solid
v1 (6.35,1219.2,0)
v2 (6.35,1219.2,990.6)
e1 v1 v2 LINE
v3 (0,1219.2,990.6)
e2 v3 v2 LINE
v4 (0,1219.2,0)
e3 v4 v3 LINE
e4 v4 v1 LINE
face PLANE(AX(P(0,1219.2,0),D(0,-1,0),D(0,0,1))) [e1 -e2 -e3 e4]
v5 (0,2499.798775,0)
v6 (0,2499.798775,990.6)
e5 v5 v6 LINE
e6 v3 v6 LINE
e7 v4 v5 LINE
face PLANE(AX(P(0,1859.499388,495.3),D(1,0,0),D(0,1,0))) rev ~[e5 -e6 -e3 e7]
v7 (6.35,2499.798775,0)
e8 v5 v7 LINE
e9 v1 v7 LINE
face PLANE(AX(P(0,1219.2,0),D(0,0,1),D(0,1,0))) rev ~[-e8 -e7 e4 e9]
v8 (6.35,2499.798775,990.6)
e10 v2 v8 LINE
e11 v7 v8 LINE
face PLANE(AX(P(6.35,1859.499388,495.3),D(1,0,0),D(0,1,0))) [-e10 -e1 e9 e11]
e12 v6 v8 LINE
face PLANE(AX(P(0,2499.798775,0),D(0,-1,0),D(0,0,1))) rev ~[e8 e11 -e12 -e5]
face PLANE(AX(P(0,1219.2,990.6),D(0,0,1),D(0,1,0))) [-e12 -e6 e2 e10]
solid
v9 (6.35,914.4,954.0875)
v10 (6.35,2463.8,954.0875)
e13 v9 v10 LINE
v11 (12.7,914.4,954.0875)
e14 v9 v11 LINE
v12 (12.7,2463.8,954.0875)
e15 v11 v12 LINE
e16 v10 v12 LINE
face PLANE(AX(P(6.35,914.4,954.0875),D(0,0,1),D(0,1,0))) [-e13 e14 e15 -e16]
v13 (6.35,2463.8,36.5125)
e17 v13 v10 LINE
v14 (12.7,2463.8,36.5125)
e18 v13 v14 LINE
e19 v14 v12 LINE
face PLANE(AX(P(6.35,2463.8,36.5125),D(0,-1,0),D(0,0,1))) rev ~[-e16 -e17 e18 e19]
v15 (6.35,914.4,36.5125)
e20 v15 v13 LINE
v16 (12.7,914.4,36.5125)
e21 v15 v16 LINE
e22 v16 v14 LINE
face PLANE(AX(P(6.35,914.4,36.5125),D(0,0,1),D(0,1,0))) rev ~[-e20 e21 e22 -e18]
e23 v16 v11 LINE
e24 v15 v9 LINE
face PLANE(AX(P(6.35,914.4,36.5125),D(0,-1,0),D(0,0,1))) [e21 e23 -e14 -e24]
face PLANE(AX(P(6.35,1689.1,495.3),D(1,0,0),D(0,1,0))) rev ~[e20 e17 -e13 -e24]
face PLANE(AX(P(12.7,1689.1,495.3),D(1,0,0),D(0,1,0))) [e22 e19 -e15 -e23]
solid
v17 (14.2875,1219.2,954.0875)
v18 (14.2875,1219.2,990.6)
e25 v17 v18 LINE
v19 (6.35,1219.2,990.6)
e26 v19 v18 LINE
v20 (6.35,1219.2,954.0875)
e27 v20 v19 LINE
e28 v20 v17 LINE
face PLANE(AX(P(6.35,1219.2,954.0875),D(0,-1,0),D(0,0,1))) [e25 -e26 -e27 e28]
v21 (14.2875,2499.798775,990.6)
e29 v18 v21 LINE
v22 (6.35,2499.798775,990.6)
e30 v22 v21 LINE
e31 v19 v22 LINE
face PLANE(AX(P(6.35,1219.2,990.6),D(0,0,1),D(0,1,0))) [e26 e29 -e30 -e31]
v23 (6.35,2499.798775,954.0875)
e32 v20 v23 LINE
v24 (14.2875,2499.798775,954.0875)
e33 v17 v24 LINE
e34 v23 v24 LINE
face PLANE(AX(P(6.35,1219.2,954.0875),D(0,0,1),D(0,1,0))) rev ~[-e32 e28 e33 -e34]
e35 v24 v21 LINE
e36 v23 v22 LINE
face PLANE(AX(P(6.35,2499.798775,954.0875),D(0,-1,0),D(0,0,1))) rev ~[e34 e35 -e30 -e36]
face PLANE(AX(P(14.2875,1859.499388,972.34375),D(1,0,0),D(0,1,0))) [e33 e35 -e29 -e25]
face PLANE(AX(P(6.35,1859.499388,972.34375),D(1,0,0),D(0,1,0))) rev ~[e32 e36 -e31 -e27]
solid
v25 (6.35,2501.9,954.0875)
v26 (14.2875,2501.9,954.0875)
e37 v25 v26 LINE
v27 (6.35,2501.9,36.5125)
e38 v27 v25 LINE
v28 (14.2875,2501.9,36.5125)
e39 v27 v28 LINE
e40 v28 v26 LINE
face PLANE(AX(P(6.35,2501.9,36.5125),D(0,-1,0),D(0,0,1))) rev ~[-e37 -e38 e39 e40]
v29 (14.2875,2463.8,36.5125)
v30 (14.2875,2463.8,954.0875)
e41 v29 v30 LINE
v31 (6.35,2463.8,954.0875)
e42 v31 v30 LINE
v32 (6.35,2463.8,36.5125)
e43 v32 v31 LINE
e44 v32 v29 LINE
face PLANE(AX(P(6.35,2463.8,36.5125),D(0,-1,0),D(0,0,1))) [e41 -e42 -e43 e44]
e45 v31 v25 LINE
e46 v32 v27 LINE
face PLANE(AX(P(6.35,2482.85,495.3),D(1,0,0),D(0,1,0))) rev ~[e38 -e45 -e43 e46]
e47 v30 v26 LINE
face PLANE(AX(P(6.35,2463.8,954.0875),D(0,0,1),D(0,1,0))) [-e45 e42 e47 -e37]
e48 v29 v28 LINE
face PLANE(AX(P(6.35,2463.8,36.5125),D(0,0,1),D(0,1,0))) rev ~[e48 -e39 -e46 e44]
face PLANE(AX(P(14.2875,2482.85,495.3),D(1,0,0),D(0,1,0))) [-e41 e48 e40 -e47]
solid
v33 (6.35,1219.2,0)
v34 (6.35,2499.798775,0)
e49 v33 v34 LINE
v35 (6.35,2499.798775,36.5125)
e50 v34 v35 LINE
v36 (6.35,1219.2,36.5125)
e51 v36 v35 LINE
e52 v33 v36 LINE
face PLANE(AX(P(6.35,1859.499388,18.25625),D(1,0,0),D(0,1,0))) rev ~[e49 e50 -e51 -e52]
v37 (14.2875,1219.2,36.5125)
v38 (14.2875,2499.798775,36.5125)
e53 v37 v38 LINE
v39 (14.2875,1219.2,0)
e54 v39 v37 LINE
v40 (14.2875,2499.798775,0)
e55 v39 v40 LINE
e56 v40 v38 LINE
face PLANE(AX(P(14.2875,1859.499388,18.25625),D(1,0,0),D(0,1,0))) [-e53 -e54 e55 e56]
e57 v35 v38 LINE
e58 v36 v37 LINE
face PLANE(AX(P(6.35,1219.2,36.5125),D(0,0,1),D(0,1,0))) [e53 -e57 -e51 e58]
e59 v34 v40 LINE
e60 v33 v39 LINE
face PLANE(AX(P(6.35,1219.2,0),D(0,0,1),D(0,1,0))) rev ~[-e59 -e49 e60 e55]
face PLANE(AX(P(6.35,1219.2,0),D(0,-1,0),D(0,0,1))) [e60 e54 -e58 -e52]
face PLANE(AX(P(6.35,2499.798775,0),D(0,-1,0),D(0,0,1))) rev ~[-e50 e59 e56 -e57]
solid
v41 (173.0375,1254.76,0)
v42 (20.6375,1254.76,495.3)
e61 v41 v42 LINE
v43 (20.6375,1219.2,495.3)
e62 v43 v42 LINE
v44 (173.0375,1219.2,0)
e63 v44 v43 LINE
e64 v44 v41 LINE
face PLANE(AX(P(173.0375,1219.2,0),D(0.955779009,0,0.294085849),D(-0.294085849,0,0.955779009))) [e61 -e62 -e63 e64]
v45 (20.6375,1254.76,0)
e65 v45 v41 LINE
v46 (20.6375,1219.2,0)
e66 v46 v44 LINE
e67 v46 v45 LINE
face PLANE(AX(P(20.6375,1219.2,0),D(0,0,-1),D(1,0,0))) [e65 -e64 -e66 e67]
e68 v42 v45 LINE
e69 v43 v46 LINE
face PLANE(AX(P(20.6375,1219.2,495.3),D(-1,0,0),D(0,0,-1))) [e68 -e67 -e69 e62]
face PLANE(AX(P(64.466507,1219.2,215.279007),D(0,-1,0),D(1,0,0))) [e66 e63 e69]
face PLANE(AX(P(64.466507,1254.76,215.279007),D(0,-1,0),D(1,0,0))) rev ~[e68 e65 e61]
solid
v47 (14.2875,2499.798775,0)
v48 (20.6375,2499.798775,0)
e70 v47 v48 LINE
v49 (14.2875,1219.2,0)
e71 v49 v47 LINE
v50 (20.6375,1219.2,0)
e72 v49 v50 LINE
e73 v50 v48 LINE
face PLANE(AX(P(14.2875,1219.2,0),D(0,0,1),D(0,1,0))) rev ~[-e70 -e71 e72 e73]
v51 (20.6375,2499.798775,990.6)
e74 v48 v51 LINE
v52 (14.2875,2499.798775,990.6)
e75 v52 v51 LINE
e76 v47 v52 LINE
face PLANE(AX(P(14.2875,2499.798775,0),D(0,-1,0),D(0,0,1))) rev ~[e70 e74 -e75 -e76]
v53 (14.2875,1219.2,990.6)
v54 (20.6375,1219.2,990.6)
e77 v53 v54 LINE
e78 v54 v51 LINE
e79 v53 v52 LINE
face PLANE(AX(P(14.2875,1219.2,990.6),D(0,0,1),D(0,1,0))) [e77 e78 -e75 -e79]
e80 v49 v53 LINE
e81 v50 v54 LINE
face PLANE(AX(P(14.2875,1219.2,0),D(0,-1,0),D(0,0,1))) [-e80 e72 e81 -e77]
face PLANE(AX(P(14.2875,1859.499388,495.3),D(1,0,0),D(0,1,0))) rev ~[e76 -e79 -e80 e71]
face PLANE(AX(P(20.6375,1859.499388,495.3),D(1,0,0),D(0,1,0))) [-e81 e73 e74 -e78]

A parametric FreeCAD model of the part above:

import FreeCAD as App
import Part
import Sketcher
from FreeCAD import Vector
Q = App.Units.Quantity

doc = App.newDocument("Part")
body = doc.addObject("PartDesign::Body", "Body")

# Sketch on YZ plane
sketch1 = doc.addObject("Sketcher::SketchObject", "Sketch")
body.addObject(sketch1)
sketch1.AttachmentSupport = (doc.YZ_Plane, [""])
sketch1.MapMode = "FlatFace"
sketch1.addGeometry(Part.LineSegment(Vector(1219.2, 990.6, 0), Vector(1219.2, 0, 0)), False)
sketch1.addGeometry(Part.LineSegment(Vector(1219.2, 0, 0), Vector(2499.798775, 0, 0)), False)
sketch1.addGeometry(Part.LineSegment(Vector(2499.798775, 0, 0), Vector(2499.798775, 990.6, 0)), False)
sketch1.addGeometry(Part.LineSegment(Vector(2499.798775, 990.6, 0), Vector(1219.2, 990.6, 0)), False)
sketch1.addConstraint(Sketcher.Constraint("Coincident", 0, 2, 1, 1))
sketch1.addConstraint(Sketcher.Constraint("Coincident", 1, 2, 2, 1))
sketch1.addConstraint(Sketcher.Constraint("Coincident", 2, 2, 3, 1))
sketch1.addConstraint(Sketcher.Constraint("Coincident", 3, 2, 0, 1))
sketch1.addConstraint(Sketcher.Constraint("Vertical", 0))
sketch1.addConstraint(Sketcher.Constraint("Horizontal", 1))
sketch1.addConstraint(Sketcher.Constraint("Vertical", 2))
sketch1.addConstraint(Sketcher.Constraint("Horizontal", 3))
sketch1.addConstraint(Sketcher.Constraint("PointOnObject", 0, 2, -1))
sketch1.addConstraint(Sketcher.Constraint("DistanceY", 0, 2, 0, 1, Q("39 in")))
sketch1.addConstraint(Sketcher.Constraint("DistanceX", -1, 1, 0, 2, Q("48 in")))
sketch1.addConstraint(Sketcher.Constraint("DistanceX", 1, 1, 1, 2, Q("1280.598775 mm")))
pad1 = doc.addObject("PartDesign::Pad", "Pad")
body.addObject(pad1)
pad1.Profile = sketch1
pad1.Length = Q("0.25 in")
body2 = doc.addObject("PartDesign::Body", "Body001")
body2.AllowCompound = True

# Sketch on YZ plane
sketch2 = doc.addObject("Sketcher::SketchObject", "Sketch001")
body2.addObject(sketch2)
sketch2.AttachmentSupport = (doc.getObject("YZ_Plane001"), [""])
sketch2.MapMode = "FlatFace"
sketch2.AttachmentOffset = App.Placement(Vector(0, 0, 0.25 * 25.4), App.Rotation())
sketch2.addGeometry(Part.LineSegment(Vector(1219.2, 990.6, 0), Vector(1219.2, 954.0875, 0)), False)
sketch2.addGeometry(Part.LineSegment(Vector(1219.2, 954.0875, 0), Vector(2499.798775, 954.0875, 0)), False)
sketch2.addGeometry(Part.LineSegment(Vector(2499.798775, 954.0875, 0), Vector(2499.798775, 990.6, 0)), False)
sketch2.addGeometry(Part.LineSegment(Vector(2499.798775, 990.6, 0), Vector(1219.2, 990.6, 0)), False)
sketch2.addGeometry(Part.LineSegment(Vector(1219.2, 36.5125, 0), Vector(1219.2, 0, 0)), False)
sketch2.addGeometry(Part.LineSegment(Vector(1219.2, 0, 0), Vector(2499.798775, 0, 0)), False)
sketch2.addGeometry(Part.LineSegment(Vector(2499.798775, 0, 0), Vector(2499.798775, 36.5125, 0)), False)
sketch2.addGeometry(Part.LineSegment(Vector(2499.798775, 36.5125, 0), Vector(1219.2, 36.5125, 0)), False)
sketch2.addConstraint(Sketcher.Constraint("Coincident", 0, 2, 1, 1))
sketch2.addConstraint(Sketcher.Constraint("Coincident", 1, 2, 2, 1))
sketch2.addConstraint(Sketcher.Constraint("Coincident", 2, 2, 3, 1))
sketch2.addConstraint(Sketcher.Constraint("Coincident", 3, 2, 0, 1))
sketch2.addConstraint(Sketcher.Constraint("Coincident", 4, 2, 5, 1))
sketch2.addConstraint(Sketcher.Constraint("Coincident", 5, 2, 6, 1))
sketch2.addConstraint(Sketcher.Constraint("Coincident", 6, 2, 7, 1))
sketch2.addConstraint(Sketcher.Constraint("Coincident", 7, 2, 4, 1))
sketch2.addConstraint(Sketcher.Constraint("Vertical", 0))
sketch2.addConstraint(Sketcher.Constraint("Horizontal", 1))
sketch2.addConstraint(Sketcher.Constraint("Vertical", 2))
sketch2.addConstraint(Sketcher.Constraint("Horizontal", 3))
sketch2.addConstraint(Sketcher.Constraint("Vertical", 4))
sketch2.addConstraint(Sketcher.Constraint("Horizontal", 5))
sketch2.addConstraint(Sketcher.Constraint("Vertical", 6))
sketch2.addConstraint(Sketcher.Constraint("Horizontal", 7))
sketch2.addConstraint(Sketcher.Constraint("PointOnObject", 4, 2, -1))
sketch2.addConstraint(Sketcher.Constraint("Vertical", 3, 2, 4, 2))
sketch2.addConstraint(Sketcher.Constraint("Vertical", 2, 2, 5, 2))
sketch2.addConstraint(Sketcher.Constraint("Equal", 2, 4))
sketch2.addConstraint(Sketcher.Constraint("DistanceX", -1, 1, 0, 2, Q("48 in")))
sketch2.addConstraint(Sketcher.Constraint("DistanceY", -1, 1, 2, 2, Q("39 in")))
sketch2.addConstraint(Sketcher.Constraint("DistanceY", 0, 2, 0, 1, Q("1.4375 in")))
sketch2.addConstraint(Sketcher.Constraint("DistanceX", 1, 1, 1, 2, Q("1280.598775 mm")))
pad2 = doc.addObject("PartDesign::Pad", "Pad001")
body2.addObject(pad2)
pad2.Profile = sketch2
pad2.Length = Q("0.3125 in")
body3 = doc.addObject("PartDesign::Body", "Body002")

# Sketch on YZ plane
sketch3 = doc.addObject("Sketcher::SketchObject", "Sketch002")
body3.addObject(sketch3)
sketch3.AttachmentSupport = (doc.getObject("YZ_Plane002"), [""])
sketch3.MapMode = "FlatFace"
sketch3.AttachmentOffset = App.Placement(Vector(0, 0, 0.25 * 25.4), App.Rotation())
sketch3.addGeometry(Part.LineSegment(Vector(2463.8, 954.0875, 0), Vector(2463.8, 36.5125, 0)), False)
sketch3.addGeometry(Part.LineSegment(Vector(2463.8, 36.5125, 0), Vector(2501.9, 36.5125, 0)), False)
sketch3.addGeometry(Part.LineSegment(Vector(2501.9, 36.5125, 0), Vector(2501.9, 954.0875, 0)), False)
sketch3.addGeometry(Part.LineSegment(Vector(2501.9, 954.0875, 0), Vector(2463.8, 954.0875, 0)), False)
sketch3.addConstraint(Sketcher.Constraint("Coincident", 0, 2, 1, 1))
sketch3.addConstraint(Sketcher.Constraint("Coincident", 1, 2, 2, 1))
sketch3.addConstraint(Sketcher.Constraint("Coincident", 2, 2, 3, 1))
sketch3.addConstraint(Sketcher.Constraint("Coincident", 3, 2, 0, 1))
sketch3.addConstraint(Sketcher.Constraint("Vertical", 0))
sketch3.addConstraint(Sketcher.Constraint("Horizontal", 1))
sketch3.addConstraint(Sketcher.Constraint("Vertical", 2))
sketch3.addConstraint(Sketcher.Constraint("Horizontal", 3))
sketch3.addConstraint(Sketcher.Constraint("DistanceX", 1, 1, 1, 2, Q("1.5 in")))
sketch3.addConstraint(Sketcher.Constraint("DistanceX", -1, 1, 0, 2, Q("97 in")))
sketch3.addConstraint(Sketcher.Constraint("DistanceY", 0, 2, 0, 1, Q("36.125 in")))
sketch3.addConstraint(Sketcher.Constraint("DistanceY", -1, 1, 0, 2, Q("1.4375 in")))
pad3 = doc.addObject("PartDesign::Pad", "Pad002")
body3.addObject(pad3)
pad3.Profile = sketch3
pad3.Length = Q("0.3125 in")
body4 = doc.addObject("PartDesign::Body", "Body003")

# Sketch on YZ plane
sketch4 = doc.addObject("Sketcher::SketchObject", "Sketch003")
body4.addObject(sketch4)
sketch4.AttachmentSupport = (doc.getObject("YZ_Plane003"), [""])
sketch4.MapMode = "FlatFace"
sketch4.AttachmentOffset = App.Placement(Vector(0, 0, 0.25 * 25.4), App.Rotation())
sketch4.addGeometry(Part.LineSegment(Vector(914.4, 954.0875, 0), Vector(914.4, 36.5125, 0)), False)
sketch4.addGeometry(Part.LineSegment(Vector(914.4, 36.5125, 0), Vector(2463.8, 36.5125, 0)), False)
sketch4.addGeometry(Part.LineSegment(Vector(2463.8, 36.5125, 0), Vector(2463.8, 954.0875, 0)), False)
sketch4.addGeometry(Part.LineSegment(Vector(2463.8, 954.0875, 0), Vector(914.4, 954.0875, 0)), False)
sketch4.addConstraint(Sketcher.Constraint("Coincident", 0, 2, 1, 1))
sketch4.addConstraint(Sketcher.Constraint("Coincident", 1, 2, 2, 1))
sketch4.addConstraint(Sketcher.Constraint("Coincident", 2, 2, 3, 1))
sketch4.addConstraint(Sketcher.Constraint("Coincident", 3, 2, 0, 1))
sketch4.addConstraint(Sketcher.Constraint("Vertical", 0))
sketch4.addConstraint(Sketcher.Constraint("Horizontal", 1))
sketch4.addConstraint(Sketcher.Constraint("Vertical", 2))
sketch4.addConstraint(Sketcher.Constraint("Horizontal", 3))
sketch4.addConstraint(Sketcher.Constraint("DistanceX", 1, 1, 1, 2, Q("61 in")))
sketch4.addConstraint(Sketcher.Constraint("DistanceX", -1, 1, 0, 2, Q("36 in")))
sketch4.addConstraint(Sketcher.Constraint("DistanceY", 0, 2, 0, 1, Q("36.125 in")))
sketch4.addConstraint(Sketcher.Constraint("DistanceY", -1, 1, 0, 2, Q("1.4375 in")))
pad4 = doc.addObject("PartDesign::Pad", "Pad003")
body4.addObject(pad4)
pad4.Profile = sketch4
pad4.Length = Q("0.25 in")
body5 = doc.addObject("PartDesign::Body", "Body004")

# Sketch on YZ plane
sketch5 = doc.addObject("Sketcher::SketchObject", "Sketch004")
body5.addObject(sketch5)
sketch5.AttachmentSupport = (doc.getObject("YZ_Plane004"), [""])
sketch5.MapMode = "FlatFace"
sketch5.AttachmentOffset = App.Placement(Vector(0, 0, 0.5625 * 25.4), App.Rotation())
sketch5.addGeometry(Part.LineSegment(Vector(1219.2, 990.6, 0), Vector(1219.2, 0, 0)), False)
sketch5.addGeometry(Part.LineSegment(Vector(1219.2, 0, 0), Vector(2499.798775, 0, 0)), False)
sketch5.addGeometry(Part.LineSegment(Vector(2499.798775, 0, 0), Vector(2499.798775, 990.6, 0)), False)
sketch5.addGeometry(Part.LineSegment(Vector(2499.798775, 990.6, 0), Vector(1219.2, 990.6, 0)), False)
sketch5.addConstraint(Sketcher.Constraint("Coincident", 0, 2, 1, 1))
sketch5.addConstraint(Sketcher.Constraint("Coincident", 1, 2, 2, 1))
sketch5.addConstraint(Sketcher.Constraint("Coincident", 2, 2, 3, 1))
sketch5.addConstraint(Sketcher.Constraint("Coincident", 3, 2, 0, 1))
sketch5.addConstraint(Sketcher.Constraint("Vertical", 0))
sketch5.addConstraint(Sketcher.Constraint("Horizontal", 1))
sketch5.addConstraint(Sketcher.Constraint("Vertical", 2))
sketch5.addConstraint(Sketcher.Constraint("Horizontal", 3))
sketch5.addConstraint(Sketcher.Constraint("PointOnObject", 0, 2, -1))
sketch5.addConstraint(Sketcher.Constraint("DistanceY", 0, 2, 0, 1, Q("39 in")))
sketch5.addConstraint(Sketcher.Constraint("DistanceX", -1, 1, 0, 2, Q("48 in")))
sketch5.addConstraint(Sketcher.Constraint("DistanceX", 1, 1, 1, 2, Q("1280.598775 mm")))
pad5 = doc.addObject("PartDesign::Pad", "Pad004")
body5.addObject(pad5)
pad5.Profile = sketch5
pad5.Length = Q("0.25 in")
body6 = doc.addObject("PartDesign::Body", "Body005")

# Sketch on XZ plane
sketch6 = doc.addObject("Sketcher::SketchObject", "Sketch005")
body6.addObject(sketch6)
sketch6.AttachmentSupport = (doc.getObject("XZ_Plane005"), [""])
sketch6.MapMode = "FlatFace"
sketch6.AttachmentOffset = App.Placement(Vector(0, 0, -48 * 25.4), App.Rotation())
sketch6.addGeometry(Part.LineSegment(Vector(20.6375, 495.3, 0), Vector(20.6375, 0, 0)), False)
sketch6.addGeometry(Part.LineSegment(Vector(20.6375, 0, 0), Vector(173.0375, 0, 0)), False)
sketch6.addGeometry(Part.LineSegment(Vector(173.0375, 0, 0), Vector(20.6375, 495.3, 0)), False)
sketch6.addConstraint(Sketcher.Constraint("Coincident", 0, 2, 1, 1))
sketch6.addConstraint(Sketcher.Constraint("Coincident", 1, 2, 2, 1))
sketch6.addConstraint(Sketcher.Constraint("Coincident", 2, 2, 0, 1))
sketch6.addConstraint(Sketcher.Constraint("Vertical", 0))
sketch6.addConstraint(Sketcher.Constraint("Horizontal", 1))
sketch6.addConstraint(Sketcher.Constraint("PointOnObject", 0, 2, -1))
sketch6.addConstraint(Sketcher.Constraint("DistanceX", 1, 1, 1, 2, Q("6 in")))
sketch6.addConstraint(Sketcher.Constraint("DistanceY", 0, 2, 0, 1, Q("19.5 in")))
sketch6.addConstraint(Sketcher.Constraint("DistanceX", -1, 1, 0, 2, Q("0.8125 in")))
pad6 = doc.addObject("PartDesign::Pad", "Pad005")
body6.addObject(pad6)
pad6.Profile = sketch6
pad6.Length = Q("1.4 in")
pad6.Reversed = True

doc.recompute()
